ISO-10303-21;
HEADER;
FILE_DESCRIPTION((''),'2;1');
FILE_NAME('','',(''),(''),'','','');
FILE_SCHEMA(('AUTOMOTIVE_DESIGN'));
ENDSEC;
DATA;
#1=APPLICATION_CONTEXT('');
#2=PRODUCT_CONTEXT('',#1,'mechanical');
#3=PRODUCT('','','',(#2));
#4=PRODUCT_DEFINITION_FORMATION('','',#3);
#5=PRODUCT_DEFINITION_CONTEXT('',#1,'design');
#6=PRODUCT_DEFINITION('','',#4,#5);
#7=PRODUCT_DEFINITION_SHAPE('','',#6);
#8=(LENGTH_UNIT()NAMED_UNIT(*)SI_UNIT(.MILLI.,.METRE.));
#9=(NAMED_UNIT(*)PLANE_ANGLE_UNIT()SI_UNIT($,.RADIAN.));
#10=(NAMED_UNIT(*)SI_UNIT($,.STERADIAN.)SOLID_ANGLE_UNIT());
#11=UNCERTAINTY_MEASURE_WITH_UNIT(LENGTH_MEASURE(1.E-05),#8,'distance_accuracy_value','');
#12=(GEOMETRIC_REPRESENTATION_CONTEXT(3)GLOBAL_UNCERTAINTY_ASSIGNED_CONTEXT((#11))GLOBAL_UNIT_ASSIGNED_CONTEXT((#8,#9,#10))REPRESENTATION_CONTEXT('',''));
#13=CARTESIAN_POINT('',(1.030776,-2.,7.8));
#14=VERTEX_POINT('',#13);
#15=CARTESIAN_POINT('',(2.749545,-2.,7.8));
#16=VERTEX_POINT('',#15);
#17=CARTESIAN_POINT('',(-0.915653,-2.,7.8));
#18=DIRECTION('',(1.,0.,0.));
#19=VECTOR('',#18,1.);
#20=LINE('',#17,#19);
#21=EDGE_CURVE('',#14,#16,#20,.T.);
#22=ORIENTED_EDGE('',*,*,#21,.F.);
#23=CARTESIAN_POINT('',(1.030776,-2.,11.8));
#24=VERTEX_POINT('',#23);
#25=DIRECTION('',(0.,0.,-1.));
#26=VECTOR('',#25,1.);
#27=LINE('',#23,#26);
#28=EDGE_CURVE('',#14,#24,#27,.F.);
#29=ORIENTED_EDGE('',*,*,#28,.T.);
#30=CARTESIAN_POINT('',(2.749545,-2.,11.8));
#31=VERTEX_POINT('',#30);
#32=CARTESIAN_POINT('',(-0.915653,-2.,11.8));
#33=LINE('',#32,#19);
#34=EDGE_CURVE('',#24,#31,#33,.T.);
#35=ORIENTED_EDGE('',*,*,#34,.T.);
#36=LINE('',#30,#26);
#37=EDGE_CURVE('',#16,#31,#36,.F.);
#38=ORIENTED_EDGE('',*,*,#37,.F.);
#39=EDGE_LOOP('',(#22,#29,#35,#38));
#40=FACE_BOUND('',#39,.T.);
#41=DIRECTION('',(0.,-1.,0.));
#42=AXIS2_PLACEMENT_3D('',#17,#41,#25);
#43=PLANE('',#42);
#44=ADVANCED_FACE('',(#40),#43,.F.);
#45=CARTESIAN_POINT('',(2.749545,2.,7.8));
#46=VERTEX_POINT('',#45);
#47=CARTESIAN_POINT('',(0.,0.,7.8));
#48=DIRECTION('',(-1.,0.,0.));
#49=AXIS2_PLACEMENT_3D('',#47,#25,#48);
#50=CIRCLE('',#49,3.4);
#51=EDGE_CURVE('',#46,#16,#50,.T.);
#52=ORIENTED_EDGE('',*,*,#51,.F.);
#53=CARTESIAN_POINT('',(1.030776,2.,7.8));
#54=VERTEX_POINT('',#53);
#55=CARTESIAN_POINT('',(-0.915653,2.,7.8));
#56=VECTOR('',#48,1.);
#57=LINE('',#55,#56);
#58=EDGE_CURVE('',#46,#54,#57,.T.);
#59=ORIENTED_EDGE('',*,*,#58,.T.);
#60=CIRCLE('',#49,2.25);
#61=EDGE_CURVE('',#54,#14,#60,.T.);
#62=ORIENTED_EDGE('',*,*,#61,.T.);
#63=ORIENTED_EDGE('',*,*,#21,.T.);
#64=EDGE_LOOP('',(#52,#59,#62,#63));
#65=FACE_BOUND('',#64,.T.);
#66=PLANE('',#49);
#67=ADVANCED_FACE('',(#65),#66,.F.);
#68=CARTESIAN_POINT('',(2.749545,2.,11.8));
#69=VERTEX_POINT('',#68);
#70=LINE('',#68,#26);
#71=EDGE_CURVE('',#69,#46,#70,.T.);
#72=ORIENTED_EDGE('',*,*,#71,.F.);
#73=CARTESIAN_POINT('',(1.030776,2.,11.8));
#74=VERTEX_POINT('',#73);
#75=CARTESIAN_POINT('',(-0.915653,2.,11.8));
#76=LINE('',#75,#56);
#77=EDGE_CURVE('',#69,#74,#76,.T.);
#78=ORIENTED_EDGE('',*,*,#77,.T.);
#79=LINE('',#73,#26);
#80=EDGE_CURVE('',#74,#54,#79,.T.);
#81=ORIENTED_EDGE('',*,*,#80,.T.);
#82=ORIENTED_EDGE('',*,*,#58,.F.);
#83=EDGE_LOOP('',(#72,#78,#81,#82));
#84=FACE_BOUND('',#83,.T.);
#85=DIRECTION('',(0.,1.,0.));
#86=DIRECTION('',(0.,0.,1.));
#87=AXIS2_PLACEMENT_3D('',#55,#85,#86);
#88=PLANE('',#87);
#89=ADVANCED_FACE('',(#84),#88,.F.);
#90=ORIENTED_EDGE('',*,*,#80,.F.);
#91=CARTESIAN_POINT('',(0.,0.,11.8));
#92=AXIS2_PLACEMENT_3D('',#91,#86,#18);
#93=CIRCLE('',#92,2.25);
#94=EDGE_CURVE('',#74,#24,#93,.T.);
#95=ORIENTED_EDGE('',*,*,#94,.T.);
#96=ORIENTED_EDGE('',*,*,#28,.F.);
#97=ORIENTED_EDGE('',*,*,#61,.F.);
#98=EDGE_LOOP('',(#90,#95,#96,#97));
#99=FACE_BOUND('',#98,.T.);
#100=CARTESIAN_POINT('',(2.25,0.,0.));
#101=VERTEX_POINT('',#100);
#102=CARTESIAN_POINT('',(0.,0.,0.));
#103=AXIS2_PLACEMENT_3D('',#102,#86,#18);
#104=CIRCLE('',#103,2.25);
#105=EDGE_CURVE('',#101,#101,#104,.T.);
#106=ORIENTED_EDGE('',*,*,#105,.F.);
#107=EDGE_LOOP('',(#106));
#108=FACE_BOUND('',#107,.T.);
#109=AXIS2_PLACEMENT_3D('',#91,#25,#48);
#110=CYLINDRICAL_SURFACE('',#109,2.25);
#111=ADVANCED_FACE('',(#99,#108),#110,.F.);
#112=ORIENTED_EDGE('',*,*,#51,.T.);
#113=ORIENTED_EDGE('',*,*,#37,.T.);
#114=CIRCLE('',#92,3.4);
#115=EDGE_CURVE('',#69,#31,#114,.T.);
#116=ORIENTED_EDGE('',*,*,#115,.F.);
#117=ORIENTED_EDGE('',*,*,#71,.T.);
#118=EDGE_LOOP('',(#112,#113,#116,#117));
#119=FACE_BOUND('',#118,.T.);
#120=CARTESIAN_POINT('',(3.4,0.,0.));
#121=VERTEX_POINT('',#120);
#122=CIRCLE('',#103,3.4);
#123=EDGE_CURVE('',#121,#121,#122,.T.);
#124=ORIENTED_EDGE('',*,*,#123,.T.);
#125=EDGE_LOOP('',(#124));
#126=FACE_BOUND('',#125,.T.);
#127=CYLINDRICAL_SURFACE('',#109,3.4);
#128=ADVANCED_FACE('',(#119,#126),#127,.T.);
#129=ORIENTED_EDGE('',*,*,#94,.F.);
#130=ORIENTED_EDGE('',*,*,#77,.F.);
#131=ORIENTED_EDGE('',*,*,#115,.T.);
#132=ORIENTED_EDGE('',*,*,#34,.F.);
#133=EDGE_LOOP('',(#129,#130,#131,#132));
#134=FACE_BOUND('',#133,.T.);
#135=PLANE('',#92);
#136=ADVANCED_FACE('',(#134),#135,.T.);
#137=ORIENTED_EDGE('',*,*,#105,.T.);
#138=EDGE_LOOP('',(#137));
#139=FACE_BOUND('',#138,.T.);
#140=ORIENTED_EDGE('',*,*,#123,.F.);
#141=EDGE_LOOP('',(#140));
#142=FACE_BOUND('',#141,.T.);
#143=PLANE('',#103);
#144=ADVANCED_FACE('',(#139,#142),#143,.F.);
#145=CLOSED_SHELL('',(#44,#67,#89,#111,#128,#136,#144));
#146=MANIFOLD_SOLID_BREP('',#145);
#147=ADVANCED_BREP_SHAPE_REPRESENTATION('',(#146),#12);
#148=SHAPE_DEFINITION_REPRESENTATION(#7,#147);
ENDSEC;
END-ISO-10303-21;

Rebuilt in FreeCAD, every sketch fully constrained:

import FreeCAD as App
import Part
import Sketcher

V = App.Vector
Q = App.Units.Quantity

doc = App.newDocument("Part")
body = doc.addObject("PartDesign::Body", "Body")

sketch1 = doc.addObject("Sketcher::SketchObject", "Sketch")
body.addObject(sketch1)
sketch1.AttachmentSupport = (doc.XY_Plane, [""])
sketch1.MapMode = "FlatFace"
sketch1.addGeometry(Part.Circle(V(0, 0, 0), V(0, 0, 1), 3.4), False)
sketch1.addGeometry(Part.Circle(V(0, 0, 0), V(0, 0, 1), 2.2), False)
sketch1.addConstraint(Sketcher.Constraint("Coincident", 0, 3, -1, 1))
sketch1.addConstraint(Sketcher.Constraint("Coincident", 1, 3, -1, 1))
sketch1.addConstraint(Sketcher.Constraint("Diameter", 0, Q("6.8 mm")))
sketch1.addConstraint(Sketcher.Constraint("Diameter", 1, Q("4.5 mm")))
pad1 = doc.addObject("PartDesign::Pad", "Pad")
body.addObject(pad1)
pad1.Profile = sketch1
pad1.Length = 11.8

sketch2 = doc.addObject("Sketcher::SketchObject", "Sketch001")
body.addObject(sketch2)
sketch2.AttachmentSupport = (doc.XY_Plane, [""])
sketch2.MapMode = "FlatFace"
sketch2.AttachmentOffset = App.Placement(V(0, 0, 11.8), App.Rotation())
sketch2.addGeometry(Part.LineSegment(V(-0.9, 2, 0), V(-0.9, -2, 0)), False)
sketch2.addGeometry(Part.LineSegment(V(-0.9, -2, 0), V(6.2, -2, 0)), False)
sketch2.addGeometry(Part.LineSegment(V(6.2, -2, 0), V(6.2, 2, 0)), False)
sketch2.addGeometry(Part.LineSegment(V(6.2, 2, 0), V(-0.9, 2, 0)), False)
sketch2.addConstraint(Sketcher.Constraint("Coincident", 0, 2, 1, 1))
sketch2.addConstraint(Sketcher.Constraint("Coincident", 1, 2, 2, 1))
sketch2.addConstraint(Sketcher.Constraint("Coincident", 2, 2, 3, 1))
sketch2.addConstraint(Sketcher.Constraint("Coincident", 3, 2, 0, 1))
sketch2.addConstraint(Sketcher.Constraint("Vertical", 0))
sketch2.addConstraint(Sketcher.Constraint("Horizontal", 1))
sketch2.addConstraint(Sketcher.Constraint("Vertical", 2))
sketch2.addConstraint(Sketcher.Constraint("Horizontal", 3))
sketch2.addConstraint(Sketcher.Constraint("DistanceY", 0, 2, 0, 1, Q("4 mm")))
sketch2.addConstraint(Sketcher.Constraint("DistanceY", 0, 2, -1, 1, Q("2 mm")))
sketch2.addConstraint(Sketcher.Constraint("DistanceX", 1, 1, 1, 2, Q("7.078995 mm")))
sketch2.addConstraint(Sketcher.Constraint("DistanceX", 0, 2, -1, 1, Q("0.915653 mm")))
pocket1 = doc.addObject("PartDesign::Pocket", "Pocket")
body.addObject(pocket1)
pocket1.Profile = sketch2
pocket1.Length = 4

doc.recompute()
